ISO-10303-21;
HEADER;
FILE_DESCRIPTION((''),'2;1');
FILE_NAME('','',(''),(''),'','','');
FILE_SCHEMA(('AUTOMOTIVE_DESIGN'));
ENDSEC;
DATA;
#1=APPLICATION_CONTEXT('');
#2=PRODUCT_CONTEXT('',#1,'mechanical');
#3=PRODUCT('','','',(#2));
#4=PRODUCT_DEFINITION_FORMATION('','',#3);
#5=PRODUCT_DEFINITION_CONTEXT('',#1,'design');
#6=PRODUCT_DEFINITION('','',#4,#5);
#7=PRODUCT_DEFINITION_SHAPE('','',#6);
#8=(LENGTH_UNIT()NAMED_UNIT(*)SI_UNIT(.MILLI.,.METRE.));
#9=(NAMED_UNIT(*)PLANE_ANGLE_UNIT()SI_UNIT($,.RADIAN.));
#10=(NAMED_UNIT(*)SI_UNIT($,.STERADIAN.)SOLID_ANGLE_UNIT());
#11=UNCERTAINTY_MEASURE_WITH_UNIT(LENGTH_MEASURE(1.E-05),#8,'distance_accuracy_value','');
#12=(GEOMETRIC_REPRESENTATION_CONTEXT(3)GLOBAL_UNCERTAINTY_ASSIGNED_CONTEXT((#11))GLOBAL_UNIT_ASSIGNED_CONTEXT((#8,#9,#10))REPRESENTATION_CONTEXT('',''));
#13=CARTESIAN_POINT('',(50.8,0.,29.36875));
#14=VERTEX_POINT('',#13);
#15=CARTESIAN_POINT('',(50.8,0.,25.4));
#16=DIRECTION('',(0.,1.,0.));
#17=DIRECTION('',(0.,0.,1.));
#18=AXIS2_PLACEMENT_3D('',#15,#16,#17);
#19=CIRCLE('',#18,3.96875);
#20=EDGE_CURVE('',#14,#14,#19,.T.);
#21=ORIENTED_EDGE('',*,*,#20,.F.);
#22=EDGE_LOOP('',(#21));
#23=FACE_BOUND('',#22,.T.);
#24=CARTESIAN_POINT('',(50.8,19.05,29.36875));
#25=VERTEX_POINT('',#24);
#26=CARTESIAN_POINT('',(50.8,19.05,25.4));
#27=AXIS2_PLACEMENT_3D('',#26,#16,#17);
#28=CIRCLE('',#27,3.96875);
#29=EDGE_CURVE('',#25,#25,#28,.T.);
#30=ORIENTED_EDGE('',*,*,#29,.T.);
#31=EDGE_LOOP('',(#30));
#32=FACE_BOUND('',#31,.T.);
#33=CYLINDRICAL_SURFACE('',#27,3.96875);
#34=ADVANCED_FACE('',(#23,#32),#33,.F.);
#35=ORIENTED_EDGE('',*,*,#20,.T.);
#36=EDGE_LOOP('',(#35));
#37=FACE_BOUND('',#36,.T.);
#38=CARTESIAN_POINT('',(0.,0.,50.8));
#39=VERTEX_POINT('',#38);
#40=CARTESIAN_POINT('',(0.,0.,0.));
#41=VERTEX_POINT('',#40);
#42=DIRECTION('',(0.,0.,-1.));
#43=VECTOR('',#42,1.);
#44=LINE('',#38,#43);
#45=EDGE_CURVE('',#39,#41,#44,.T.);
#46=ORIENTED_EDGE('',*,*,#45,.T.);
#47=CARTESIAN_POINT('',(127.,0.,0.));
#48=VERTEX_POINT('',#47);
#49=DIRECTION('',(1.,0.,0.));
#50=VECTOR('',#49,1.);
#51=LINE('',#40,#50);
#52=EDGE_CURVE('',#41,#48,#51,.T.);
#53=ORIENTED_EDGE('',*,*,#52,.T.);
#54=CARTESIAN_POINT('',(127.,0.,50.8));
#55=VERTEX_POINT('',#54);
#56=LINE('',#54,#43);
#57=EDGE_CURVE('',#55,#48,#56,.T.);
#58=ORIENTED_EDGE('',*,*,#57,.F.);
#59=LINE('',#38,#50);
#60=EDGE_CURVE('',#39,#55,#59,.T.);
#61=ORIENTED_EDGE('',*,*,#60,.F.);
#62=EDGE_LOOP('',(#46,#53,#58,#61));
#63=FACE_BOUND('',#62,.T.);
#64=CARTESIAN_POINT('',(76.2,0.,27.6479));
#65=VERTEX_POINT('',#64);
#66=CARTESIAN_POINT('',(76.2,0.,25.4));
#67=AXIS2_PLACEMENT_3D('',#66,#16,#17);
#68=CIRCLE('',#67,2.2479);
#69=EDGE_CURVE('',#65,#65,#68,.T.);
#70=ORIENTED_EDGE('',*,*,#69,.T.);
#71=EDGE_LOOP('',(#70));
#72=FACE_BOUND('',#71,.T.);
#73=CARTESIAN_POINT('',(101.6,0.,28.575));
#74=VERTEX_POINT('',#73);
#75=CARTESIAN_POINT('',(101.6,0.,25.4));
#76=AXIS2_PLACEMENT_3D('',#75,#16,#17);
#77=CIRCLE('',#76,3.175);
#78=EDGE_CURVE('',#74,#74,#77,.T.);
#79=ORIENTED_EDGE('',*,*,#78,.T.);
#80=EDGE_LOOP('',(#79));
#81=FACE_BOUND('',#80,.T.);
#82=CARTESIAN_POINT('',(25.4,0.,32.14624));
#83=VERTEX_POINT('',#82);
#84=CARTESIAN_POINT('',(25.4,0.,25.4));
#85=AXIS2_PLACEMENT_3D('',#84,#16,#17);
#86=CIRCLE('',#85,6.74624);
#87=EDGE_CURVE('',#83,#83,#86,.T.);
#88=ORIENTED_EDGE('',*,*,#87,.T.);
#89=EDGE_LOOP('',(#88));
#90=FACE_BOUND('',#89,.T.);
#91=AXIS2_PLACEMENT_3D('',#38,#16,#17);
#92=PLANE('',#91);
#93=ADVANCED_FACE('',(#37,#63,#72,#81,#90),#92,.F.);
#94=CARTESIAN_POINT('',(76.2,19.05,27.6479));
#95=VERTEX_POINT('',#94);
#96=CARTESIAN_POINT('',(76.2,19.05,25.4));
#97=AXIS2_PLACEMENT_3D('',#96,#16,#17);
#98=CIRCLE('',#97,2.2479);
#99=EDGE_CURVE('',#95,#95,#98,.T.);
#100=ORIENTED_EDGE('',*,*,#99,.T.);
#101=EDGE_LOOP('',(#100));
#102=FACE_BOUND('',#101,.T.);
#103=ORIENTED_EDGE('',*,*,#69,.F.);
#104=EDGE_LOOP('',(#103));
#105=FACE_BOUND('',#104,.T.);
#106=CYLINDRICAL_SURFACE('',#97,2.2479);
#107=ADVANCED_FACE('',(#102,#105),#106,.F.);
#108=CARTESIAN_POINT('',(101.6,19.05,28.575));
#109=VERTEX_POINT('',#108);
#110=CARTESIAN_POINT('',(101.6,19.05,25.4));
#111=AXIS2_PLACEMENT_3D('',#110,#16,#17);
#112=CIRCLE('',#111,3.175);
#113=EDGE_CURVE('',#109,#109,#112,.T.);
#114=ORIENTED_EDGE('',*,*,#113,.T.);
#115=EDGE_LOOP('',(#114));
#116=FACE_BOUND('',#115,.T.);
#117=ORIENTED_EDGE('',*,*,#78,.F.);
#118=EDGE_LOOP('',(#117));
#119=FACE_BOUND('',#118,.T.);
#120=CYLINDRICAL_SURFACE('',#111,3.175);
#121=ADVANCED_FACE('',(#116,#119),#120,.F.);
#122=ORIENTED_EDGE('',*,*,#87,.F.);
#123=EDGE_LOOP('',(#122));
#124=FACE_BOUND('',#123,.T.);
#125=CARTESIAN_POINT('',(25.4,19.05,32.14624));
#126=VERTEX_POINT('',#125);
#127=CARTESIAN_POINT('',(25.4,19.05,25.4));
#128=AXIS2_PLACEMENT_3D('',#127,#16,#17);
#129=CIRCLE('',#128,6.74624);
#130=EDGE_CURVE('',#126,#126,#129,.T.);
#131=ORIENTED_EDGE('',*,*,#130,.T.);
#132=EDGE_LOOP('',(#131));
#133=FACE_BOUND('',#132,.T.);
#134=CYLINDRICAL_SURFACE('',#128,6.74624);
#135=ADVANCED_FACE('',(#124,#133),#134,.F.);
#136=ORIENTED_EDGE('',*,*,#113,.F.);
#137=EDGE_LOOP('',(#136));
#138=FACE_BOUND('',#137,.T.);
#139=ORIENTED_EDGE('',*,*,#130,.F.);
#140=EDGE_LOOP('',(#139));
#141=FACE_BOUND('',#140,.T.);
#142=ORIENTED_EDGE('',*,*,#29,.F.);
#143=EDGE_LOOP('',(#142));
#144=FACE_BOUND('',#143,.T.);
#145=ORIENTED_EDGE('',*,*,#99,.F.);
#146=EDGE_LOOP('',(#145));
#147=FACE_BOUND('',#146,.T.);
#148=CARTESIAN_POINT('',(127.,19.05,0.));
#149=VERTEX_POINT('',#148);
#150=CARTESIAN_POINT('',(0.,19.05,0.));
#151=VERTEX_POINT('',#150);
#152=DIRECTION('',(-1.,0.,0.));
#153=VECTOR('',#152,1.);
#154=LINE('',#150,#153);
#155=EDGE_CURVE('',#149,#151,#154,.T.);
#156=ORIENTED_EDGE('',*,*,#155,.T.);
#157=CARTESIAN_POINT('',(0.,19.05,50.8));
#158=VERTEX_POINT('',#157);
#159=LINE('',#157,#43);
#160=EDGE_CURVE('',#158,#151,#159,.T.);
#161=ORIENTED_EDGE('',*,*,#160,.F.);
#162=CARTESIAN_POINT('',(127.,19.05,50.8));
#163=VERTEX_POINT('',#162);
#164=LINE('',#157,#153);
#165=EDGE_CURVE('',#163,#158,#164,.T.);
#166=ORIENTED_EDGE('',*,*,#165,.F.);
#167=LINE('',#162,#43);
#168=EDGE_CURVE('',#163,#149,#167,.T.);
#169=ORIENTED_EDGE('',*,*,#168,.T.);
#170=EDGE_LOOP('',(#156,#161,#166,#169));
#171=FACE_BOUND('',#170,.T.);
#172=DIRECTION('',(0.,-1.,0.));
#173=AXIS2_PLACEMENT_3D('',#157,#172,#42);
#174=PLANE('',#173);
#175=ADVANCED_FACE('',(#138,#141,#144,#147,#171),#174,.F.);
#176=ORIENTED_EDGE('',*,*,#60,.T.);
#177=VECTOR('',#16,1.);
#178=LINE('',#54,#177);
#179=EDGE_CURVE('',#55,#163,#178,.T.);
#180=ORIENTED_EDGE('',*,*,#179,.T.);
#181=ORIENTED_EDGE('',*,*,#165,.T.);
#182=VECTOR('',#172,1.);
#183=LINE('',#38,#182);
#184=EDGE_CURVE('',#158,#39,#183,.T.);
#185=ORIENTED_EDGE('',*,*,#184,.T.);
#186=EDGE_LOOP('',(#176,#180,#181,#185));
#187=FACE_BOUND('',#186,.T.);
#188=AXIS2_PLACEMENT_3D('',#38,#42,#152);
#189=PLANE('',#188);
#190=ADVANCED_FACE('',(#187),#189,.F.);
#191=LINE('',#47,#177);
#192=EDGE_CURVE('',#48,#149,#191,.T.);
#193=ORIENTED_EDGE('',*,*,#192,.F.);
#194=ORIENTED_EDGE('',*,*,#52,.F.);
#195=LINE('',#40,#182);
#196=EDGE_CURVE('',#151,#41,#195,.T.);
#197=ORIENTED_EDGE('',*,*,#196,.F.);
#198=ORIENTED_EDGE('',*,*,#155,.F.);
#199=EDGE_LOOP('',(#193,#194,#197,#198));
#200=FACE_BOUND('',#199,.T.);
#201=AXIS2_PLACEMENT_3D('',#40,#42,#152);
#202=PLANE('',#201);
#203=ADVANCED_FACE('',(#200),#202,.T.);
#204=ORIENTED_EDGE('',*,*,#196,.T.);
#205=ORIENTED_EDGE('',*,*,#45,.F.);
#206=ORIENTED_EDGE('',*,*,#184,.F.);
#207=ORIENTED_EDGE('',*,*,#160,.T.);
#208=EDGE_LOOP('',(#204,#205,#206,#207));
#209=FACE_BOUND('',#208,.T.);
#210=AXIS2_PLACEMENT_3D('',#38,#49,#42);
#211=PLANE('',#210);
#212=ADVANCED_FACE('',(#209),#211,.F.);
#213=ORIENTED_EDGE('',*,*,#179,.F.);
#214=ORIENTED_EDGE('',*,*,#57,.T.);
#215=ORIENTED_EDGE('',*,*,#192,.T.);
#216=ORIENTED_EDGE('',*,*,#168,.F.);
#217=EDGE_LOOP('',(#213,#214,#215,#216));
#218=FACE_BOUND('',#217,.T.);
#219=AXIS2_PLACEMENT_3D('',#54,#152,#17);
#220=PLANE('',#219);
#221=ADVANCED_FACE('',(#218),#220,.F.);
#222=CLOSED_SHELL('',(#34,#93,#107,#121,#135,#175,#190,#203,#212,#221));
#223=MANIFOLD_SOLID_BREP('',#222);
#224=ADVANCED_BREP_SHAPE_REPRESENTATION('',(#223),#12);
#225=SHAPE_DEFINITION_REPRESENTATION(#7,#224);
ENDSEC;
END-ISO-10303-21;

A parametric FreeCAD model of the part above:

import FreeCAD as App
import Part
import Sketcher
Q = App.Units.Quantity

doc = App.newDocument("Part")
params = doc.addObject("Spreadsheet::Sheet", "Params")
for row, (alias, value) in enumerate([
    ("sketch1_width", "5 in"),
    ("sketch1_height", "0.75 in"),
    ("pad1_length", "2 in"),
    ("hole_diameter", "0.5312 in"),
    ("sketch3_diameter", "0.3125 in"),
    ("hole2_diameter", "0.3125 in"),
    ("sketch4_diameter", "0.177 in"),
    ("hole3_diameter", "0.177 in"),
    ("sketch5_diameter", "0.25 in"),
    ("hole4_diameter", "0.25 in"),
], start=1):
    params.set(f"A{row}", alias)
    params.set(f"B{row}", "=" + value)
    params.setAlias(f"B{row}", alias)

body = doc.addObject("PartDesign::Body", "Body")

# Sketch on XY plane
sketch1 = body.newObject("Sketcher::SketchObject", "Sketch")
sketch1.AttachmentSupport = (doc.getObject("XY_Plane"), [""])
sketch1.MapMode = "FlatFace"
sketch1.addGeometry([
    Part.LineSegment(App.Vector(0, 19, 0), App.Vector(0, 0, 0)),
    Part.LineSegment(App.Vector(0, 0, 0), App.Vector(127, 0, 0)),
    Part.LineSegment(App.Vector(127, 0, 0), App.Vector(127, 19, 0)),
    Part.LineSegment(App.Vector(127, 19, 0), App.Vector(0, 19, 0)),
], False)
sketch1.addConstraint([
    Sketcher.Constraint("Coincident", 0, 2, 1, 1),
    Sketcher.Constraint("Coincident", 1, 2, 2, 1),
    Sketcher.Constraint("Coincident", 2, 2, 3, 1),
    Sketcher.Constraint("Coincident", 3, 2, 0, 1),
    Sketcher.Constraint("Vertical", 0),
    Sketcher.Constraint("Horizontal", 1),
    Sketcher.Constraint("Vertical", 2),
    Sketcher.Constraint("Horizontal", 3),
    Sketcher.Constraint("Coincident", 0, 2, -1, 1),
    Sketcher.Constraint("DistanceX", 1, 1, 1, 2, Q("5 in")),
    Sketcher.Constraint("DistanceY", 0, 2, 0, 1, Q("0.75 in")),
])
sketch1.setExpression("Constraints[9]", "Params.sketch1_width")
sketch1.setExpression("Constraints[10]", "Params.sketch1_height")
pad1 = body.newObject("PartDesign::Pad", "Pad")
pad1.Profile = sketch1
pad1.setExpression("Length", "Params.pad1_length")

# Sketch on XZ plane
sketch2 = body.newObject("Sketcher::SketchObject", "Sketch001")
sketch2.AttachmentSupport = (doc.getObject("XZ_Plane"), [""])
sketch2.MapMode = "FlatFace"
sketch2.AttachmentOffset = App.Placement(App.Vector(0, 0, -0.75 * 25.4), App.Rotation())
sketch2.addGeometry(Part.Circle(App.Vector(25, 25, 0), App.Vector(0, 0, 1), 7), False)
sketch2.addConstraint([
    Sketcher.Constraint("DistanceX", -1, 1, 0, 3, Q("1 in")),
    Sketcher.Constraint("DistanceY", -1, 1, 0, 3, Q("1 in")),
    Sketcher.Constraint("Diameter", 0, Q("0.5312 in")),
])
doc.recompute()
hole = body.newObject("PartDesign::Hole", "Hole")
hole.Profile = sketch2
hole.ThreadType = "None"
hole.setExpression("Diameter", "Params.hole_diameter")
hole.DepthType = "ThroughAll"
hole.Reversed = True

# Sketch on XZ plane
sketch3 = body.newObject("Sketcher::SketchObject", "Sketch002")
sketch3.AttachmentSupport = (doc.getObject("XZ_Plane"), [""])
sketch3.MapMode = "FlatFace"
sketch3.AttachmentOffset = App.Placement(App.Vector(0, 0, -0.75 * 25.4), App.Rotation())
sketch3.addGeometry(Part.Circle(App.Vector(50.8, 25.4, 0), App.Vector(0, 0, 1), 4), False)
sketch3.addConstraint([
    Sketcher.Constraint("Diameter", 0, Q("0.3125 in")),
    Sketcher.Constraint("DistanceX", -1, 1, 0, 3, Q("2 in")),
    Sketcher.Constraint("DistanceY", -1, 1, 0, 3, Q("1 in")),
])
sketch3.setExpression("Constraints[0]", "Params.sketch3_diameter")
doc.recompute()
hole2 = body.newObject("PartDesign::Hole", "Hole001")
hole2.Profile = sketch3
hole2.ThreadType = "None"
hole2.setExpression("Diameter", "Params.hole2_diameter")
hole2.DepthType = "ThroughAll"
hole2.Reversed = True

# Sketch on XZ plane
sketch4 = body.newObject("Sketcher::SketchObject", "Sketch003")
sketch4.AttachmentSupport = (doc.getObject("XZ_Plane"), [""])
sketch4.MapMode = "FlatFace"
sketch4.AttachmentOffset = App.Placement(App.Vector(0, 0, -0.75 * 25.4), App.Rotation())
sketch4.addGeometry(Part.Circle(App.Vector(76.2, 25.4, 0), App.Vector(0, 0, 1), 2.2), False)
sketch4.addConstraint([
    Sketcher.Constraint("Diameter", 0, Q("0.177 in")),
    Sketcher.Constraint("DistanceX", -1, 1, 0, 3, Q("3 in")),
    Sketcher.Constraint("DistanceY", -1, 1, 0, 3, Q("1 in")),
])
sketch4.setExpression("Constraints[0]", "Params.sketch4_diameter")
doc.recompute()
hole3 = body.newObject("PartDesign::Hole", "Hole002")
hole3.Profile = sketch4
hole3.ThreadType = "None"
hole3.setExpression("Diameter", "Params.hole3_diameter")
hole3.DepthType = "ThroughAll"
hole3.Reversed = True

# Sketch on XZ plane
sketch5 = body.newObject("Sketcher::SketchObject", "Sketch004")
sketch5.AttachmentSupport = (doc.getObject("XZ_Plane"), [""])
sketch5.MapMode = "FlatFace"
sketch5.AttachmentOffset = App.Placement(App.Vector(0, 0, -0.75 * 25.4), App.Rotation())
sketch5.addGeometry(Part.Circle(App.Vector(101.6, 25.4, 0), App.Vector(0, 0, 1), 3.2), False)
sketch5.addConstraint([
    Sketcher.Constraint("Diameter", 0, Q("0.25 in")),
    Sketcher.Constraint("DistanceX", -1, 1, 0, 3, Q("4 in")),
    Sketcher.Constraint("DistanceY", -1, 1, 0, 3, Q("1 in")),
])
sketch5.setExpression("Constraints[0]", "Params.sketch5_diameter")
doc.recompute()
hole4 = body.newObject("PartDesign::Hole", "Hole003")
hole4.Profile = sketch5
hole4.ThreadType = "None"
hole4.setExpression("Diameter", "Params.hole4_diameter")
hole4.DepthType = "ThroughAll"
hole4.Reversed = True

doc.recompute()
